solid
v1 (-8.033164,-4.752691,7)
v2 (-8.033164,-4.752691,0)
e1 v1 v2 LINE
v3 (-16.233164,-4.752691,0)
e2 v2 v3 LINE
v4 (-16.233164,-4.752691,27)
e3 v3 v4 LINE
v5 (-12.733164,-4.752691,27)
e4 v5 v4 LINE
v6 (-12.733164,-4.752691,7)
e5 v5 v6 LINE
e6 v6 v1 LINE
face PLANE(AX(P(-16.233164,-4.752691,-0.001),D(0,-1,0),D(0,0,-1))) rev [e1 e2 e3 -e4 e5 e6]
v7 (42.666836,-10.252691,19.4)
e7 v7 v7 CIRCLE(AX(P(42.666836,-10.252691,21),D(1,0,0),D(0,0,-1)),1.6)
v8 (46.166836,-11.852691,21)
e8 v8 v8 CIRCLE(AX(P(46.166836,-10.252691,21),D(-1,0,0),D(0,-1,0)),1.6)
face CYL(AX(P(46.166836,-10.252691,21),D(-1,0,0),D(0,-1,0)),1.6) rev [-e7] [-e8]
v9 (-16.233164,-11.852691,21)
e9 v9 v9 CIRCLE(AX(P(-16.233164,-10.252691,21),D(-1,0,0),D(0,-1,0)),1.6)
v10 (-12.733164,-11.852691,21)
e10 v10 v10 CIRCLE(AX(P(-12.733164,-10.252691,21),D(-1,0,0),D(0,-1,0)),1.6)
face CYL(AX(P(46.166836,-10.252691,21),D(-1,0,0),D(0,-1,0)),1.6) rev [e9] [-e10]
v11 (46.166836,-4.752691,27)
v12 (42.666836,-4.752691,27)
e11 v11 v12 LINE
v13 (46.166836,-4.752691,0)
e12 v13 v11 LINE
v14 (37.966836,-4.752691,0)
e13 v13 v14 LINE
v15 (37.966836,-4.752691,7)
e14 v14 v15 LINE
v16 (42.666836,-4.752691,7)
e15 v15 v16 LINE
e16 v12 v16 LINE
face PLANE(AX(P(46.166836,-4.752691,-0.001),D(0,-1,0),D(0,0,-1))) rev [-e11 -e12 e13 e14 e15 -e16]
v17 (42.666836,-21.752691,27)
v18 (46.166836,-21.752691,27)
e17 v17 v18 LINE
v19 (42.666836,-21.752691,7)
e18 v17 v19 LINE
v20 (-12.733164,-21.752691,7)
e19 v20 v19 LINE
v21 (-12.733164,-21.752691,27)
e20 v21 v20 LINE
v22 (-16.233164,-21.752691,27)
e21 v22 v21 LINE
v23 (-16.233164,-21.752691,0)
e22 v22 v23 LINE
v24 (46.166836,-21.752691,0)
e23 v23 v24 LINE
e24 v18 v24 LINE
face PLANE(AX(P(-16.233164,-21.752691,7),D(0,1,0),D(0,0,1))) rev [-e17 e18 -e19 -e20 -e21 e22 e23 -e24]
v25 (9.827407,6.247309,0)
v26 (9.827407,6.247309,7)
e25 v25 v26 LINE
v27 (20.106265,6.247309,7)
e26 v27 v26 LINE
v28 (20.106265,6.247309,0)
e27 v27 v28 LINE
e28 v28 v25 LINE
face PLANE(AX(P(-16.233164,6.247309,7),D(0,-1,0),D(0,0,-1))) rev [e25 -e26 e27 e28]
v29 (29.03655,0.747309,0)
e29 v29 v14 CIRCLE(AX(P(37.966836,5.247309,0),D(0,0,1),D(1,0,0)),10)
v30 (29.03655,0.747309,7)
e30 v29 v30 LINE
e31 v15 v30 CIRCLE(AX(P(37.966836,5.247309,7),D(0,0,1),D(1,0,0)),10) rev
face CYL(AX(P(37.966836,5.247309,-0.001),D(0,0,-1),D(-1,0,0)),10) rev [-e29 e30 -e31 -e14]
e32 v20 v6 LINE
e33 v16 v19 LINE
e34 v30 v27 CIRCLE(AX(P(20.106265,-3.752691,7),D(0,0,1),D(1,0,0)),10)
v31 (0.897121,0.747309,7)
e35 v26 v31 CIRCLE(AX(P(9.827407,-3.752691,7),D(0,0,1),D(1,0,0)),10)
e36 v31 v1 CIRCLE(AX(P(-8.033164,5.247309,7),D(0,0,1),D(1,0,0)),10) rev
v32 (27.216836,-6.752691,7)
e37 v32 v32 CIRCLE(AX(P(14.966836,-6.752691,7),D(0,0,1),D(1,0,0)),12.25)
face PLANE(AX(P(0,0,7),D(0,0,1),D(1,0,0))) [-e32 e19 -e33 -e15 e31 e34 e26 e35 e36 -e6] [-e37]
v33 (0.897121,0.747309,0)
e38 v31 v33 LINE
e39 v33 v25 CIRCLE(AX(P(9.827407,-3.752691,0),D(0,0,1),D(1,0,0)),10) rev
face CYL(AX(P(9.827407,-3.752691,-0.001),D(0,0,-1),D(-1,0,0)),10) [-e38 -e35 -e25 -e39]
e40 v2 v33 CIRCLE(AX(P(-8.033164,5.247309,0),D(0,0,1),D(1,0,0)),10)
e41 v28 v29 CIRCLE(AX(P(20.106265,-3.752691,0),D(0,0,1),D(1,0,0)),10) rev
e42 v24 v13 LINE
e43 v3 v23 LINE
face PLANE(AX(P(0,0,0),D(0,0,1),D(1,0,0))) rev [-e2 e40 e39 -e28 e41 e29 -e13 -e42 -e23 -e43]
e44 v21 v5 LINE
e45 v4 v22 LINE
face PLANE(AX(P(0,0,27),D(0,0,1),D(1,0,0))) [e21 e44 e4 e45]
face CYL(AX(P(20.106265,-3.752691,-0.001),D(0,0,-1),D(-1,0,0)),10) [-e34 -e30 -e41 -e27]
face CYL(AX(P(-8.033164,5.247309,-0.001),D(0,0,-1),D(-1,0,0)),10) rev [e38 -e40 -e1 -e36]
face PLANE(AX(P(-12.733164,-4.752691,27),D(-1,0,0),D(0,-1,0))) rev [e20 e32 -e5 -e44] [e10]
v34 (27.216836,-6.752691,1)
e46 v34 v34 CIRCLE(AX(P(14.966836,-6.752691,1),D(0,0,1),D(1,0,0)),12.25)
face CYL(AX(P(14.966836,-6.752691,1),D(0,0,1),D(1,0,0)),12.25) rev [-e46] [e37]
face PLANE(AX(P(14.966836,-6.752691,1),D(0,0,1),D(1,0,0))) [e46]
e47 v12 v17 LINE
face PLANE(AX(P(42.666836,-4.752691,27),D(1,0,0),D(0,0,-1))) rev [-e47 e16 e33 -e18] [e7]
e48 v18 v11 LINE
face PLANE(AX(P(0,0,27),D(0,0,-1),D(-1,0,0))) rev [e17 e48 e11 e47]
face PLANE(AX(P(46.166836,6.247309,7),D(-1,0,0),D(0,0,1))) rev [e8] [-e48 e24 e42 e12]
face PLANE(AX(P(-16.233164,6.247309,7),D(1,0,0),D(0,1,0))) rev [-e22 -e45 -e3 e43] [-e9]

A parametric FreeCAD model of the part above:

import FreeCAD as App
import Part
import Sketcher


def edges_at(feature, points):
    """Names of the edges that pass closest to the given points."""
    edges = feature.Shape.Edges
    near = lambda p: min(range(len(edges)), key=lambda i: edges[i].distToShape(Part.Vertex(*p))[0])
    return sorted({f"Edge{near(p) + 1}" for p in points})


def add_polygon(sketch, points):
    """Adds a closed chain of lines whose ends are joined by coincident constraints."""
    first, n = sketch.GeometryCount, len(points)
    for a, b in zip(points, points[1:] + points[:1]):
        sketch.addGeometry(Part.LineSegment(App.Vector(*a, 0), App.Vector(*b, 0)), False)
    for i in range(n):
        sketch.addConstraint(Sketcher.Constraint("Coincident", first + i, 2, first + (i + 1) % n, 1))

doc = App.newDocument("Part")
params = doc.addObject("Spreadsheet::Sheet", "Params")
for row, (alias, value) in enumerate([
    ("sketch1_height", "28 mm"),
    ("sketch1_width", "62.4 mm"),
    ("pad1_length", "7 mm"),
    ("sketch2_diameter", "24.5 mm"),
    ("pocket1_length", "6 mm"),
    ("sketch3_height", "11 mm"),
    ("sketch3_width", "18.2 mm"),
    ("sketch4_height", "11 mm"),
    ("sketch4_width", "18.2 mm"),
    ("fillet_radius", "10 mm"),
    ("fillet2_radius", "10 mm"),
    ("sketch5_height", "17 mm"),
    ("sketch5_width", "3.5 mm"),
    ("pad2_length", "20 mm"),
    ("sketch6_diameter", "3.2 mm"),
], start=1):
    params.set(f"A{row}", alias)
    params.set(f"B{row}", "=" + value)
    params.setAlias(f"B{row}", alias)

body = doc.addObject("PartDesign::Body", "Body")

# Sketch on XY plane
sketch1 = body.newObject("Sketcher::SketchObject", "Sketch")
sketch1.AttachmentSupport = (doc.getObject("XY_Plane"), [""])
sketch1.MapMode = "FlatFace"
add_polygon(sketch1, [(-16, 6), (-16, -22), (46, -22), (46, 6)])  # lines 0-3
sketch1.addConstraint(Sketcher.Constraint("Vertical", 0))
sketch1.addConstraint(Sketcher.Constraint("Horizontal", 1))
sketch1.addConstraint(Sketcher.Constraint("Vertical", 2))
sketch1.addConstraint(Sketcher.Constraint("Horizontal", 3))
sketch1.addConstraint(Sketcher.Constraint("DistanceY", 0, 2, 0, 1, 28.0))
sketch1.addConstraint(Sketcher.Constraint("DistanceX", 1, 1, 1, 2, 62.4))
sketch1.addConstraint(Sketcher.Constraint("DistanceY", 0, 2, -1, 1, 21.752691))
sketch1.addConstraint(Sketcher.Constraint("DistanceX", 0, 2, -1, 1, 16.233164))
sketch1.setExpression("Constraints[8]", "Params.sketch1_height")
sketch1.setExpression("Constraints[9]", "Params.sketch1_width")
pad1 = body.newObject("PartDesign::Pad", "Pad")
pad1.Profile = sketch1
pad1.setExpression("Length", "Params.pad1_length")

# Sketch on XY plane
sketch2 = body.newObject("Sketcher::SketchObject", "Sketch001")
sketch2.AttachmentSupport = (doc.getObject("XY_Plane"), [""])
sketch2.MapMode = "FlatFace"
sketch2.AttachmentOffset = App.Placement(App.Vector(0, 0, 7), App.Rotation())
sketch2.addGeometry(Part.Circle(App.Vector(15, -7, 0), App.Vector(0, 0, 1), 12), False)
sketch2.addConstraint(Sketcher.Constraint("Diameter", 0, 24.5))
sketch2.addConstraint(Sketcher.Constraint("DistanceY", 0, 3, -1, 1, 6.752691))
sketch2.addConstraint(Sketcher.Constraint("DistanceX", -1, 1, 0, 3, 14.966836))
sketch2.setExpression("Constraints[0]", "Params.sketch2_diameter")
pocket1 = body.newObject("PartDesign::Pocket", "Pocket")
pocket1.Profile = sketch2
pocket1.setExpression("Length", "Params.pocket1_length")

# Sketch on XY plane
sketch3 = body.newObject("Sketcher::SketchObject", "Sketch002")
sketch3.AttachmentSupport = (doc.getObject("XY_Plane"), [""])
sketch3.MapMode = "FlatFace"
sketch3.AttachmentOffset = App.Placement(App.Vector(0, 0, 7), App.Rotation())
add_polygon(sketch3, [(-16, 6), (-16, -5), (2, -5), (2, 6)])  # lines 0-3
sketch3.addConstraint(Sketcher.Constraint("Vertical", 0))
sketch3.addConstraint(Sketcher.Constraint("Horizontal", 1))
sketch3.addConstraint(Sketcher.Constraint("Vertical", 2))
sketch3.addConstraint(Sketcher.Constraint("Horizontal", 3))
sketch3.addConstraint(Sketcher.Constraint("DistanceY", 0, 2, 0, 1, 11.0))
sketch3.addConstraint(Sketcher.Constraint("DistanceX", 1, 1, 1, 2, 18.2))
sketch3.addConstraint(Sketcher.Constraint("DistanceY", 0, 2, -1, 1, 4.752691))
sketch3.addConstraint(Sketcher.Constraint("DistanceX", 0, 2, -1, 1, 16.233164))
sketch3.setExpression("Constraints[8]", "Params.sketch3_height")
sketch3.setExpression("Constraints[9]", "Params.sketch3_width")
pocket2 = body.newObject("PartDesign::Pocket", "Pocket001")
pocket2.Profile = sketch3
pocket2.Type = "UpToFirst"

# Sketch on XY plane
sketch4 = body.newObject("Sketcher::SketchObject", "Sketch003")
sketch4.AttachmentSupport = (doc.getObject("XY_Plane"), [""])
sketch4.MapMode = "FlatFace"
sketch4.AttachmentOffset = App.Placement(App.Vector(0, 0, 7), App.Rotation())
add_polygon(sketch4, [(28, 6), (28, -5), (46, -5), (46, 6)])  # lines 0-3
sketch4.addConstraint(Sketcher.Constraint("Vertical", 0))
sketch4.addConstraint(Sketcher.Constraint("Horizontal", 1))
sketch4.addConstraint(Sketcher.Constraint("Vertical", 2))
sketch4.addConstraint(Sketcher.Constraint("Horizontal", 3))
sketch4.addConstraint(Sketcher.Constraint("DistanceY", 0, 2, 0, 1, 11.0))
sketch4.addConstraint(Sketcher.Constraint("DistanceX", 1, 1, 1, 2, 18.2))
sketch4.addConstraint(Sketcher.Constraint("DistanceY", 0, 2, -1, 1, 4.752691))
sketch4.addConstraint(Sketcher.Constraint("DistanceX", -1, 1, 0, 2, 27.966836))
sketch4.setExpression("Constraints[8]", "Params.sketch4_height")
sketch4.setExpression("Constraints[9]", "Params.sketch4_width")
pocket3 = body.newObject("PartDesign::Pocket", "Pocket002")
pocket3.Profile = sketch4
pocket3.Type = "UpToFirst"
doc.recompute()

fillet = body.newObject("PartDesign::Fillet", "Fillet")
fillet.Base = (pocket3, edges_at(pocket3, [(1.967, -4.753, 3.5), (27.967, -4.753, 3.5)]))
fillet.setExpression("Radius", "Params.fillet_radius")
doc.recompute()

fillet2 = body.newObject("PartDesign::Fillet", "Fillet001")
fillet2.Base = (fillet, edges_at(fillet, [(27.967, 6.247, 3.5), (1.967, 6.247, 3.5)]))
fillet2.setExpression("Radius", "Params.fillet2_radius")

# Sketch on XY plane
sketch5 = body.newObject("Sketcher::SketchObject", "Sketch004")
sketch5.AttachmentSupport = (doc.getObject("XY_Plane"), [""])
sketch5.MapMode = "FlatFace"
sketch5.AttachmentOffset = App.Placement(App.Vector(0, 0, 7), App.Rotation())
add_polygon(sketch5, [(-16.2, -4.8), (-16.2, -21.8), (-12.7, -21.8), (-12.7, -4.8)])  # lines 0-3
add_polygon(sketch5, [(42.7, -4.8), (42.7, -21.8), (46.2, -21.8), (46.2, -4.8)])  # lines 4-7
sketch5.addConstraint(Sketcher.Constraint("Vertical", 0))
sketch5.addConstraint(Sketcher.Constraint("Horizontal", 1))
sketch5.addConstraint(Sketcher.Constraint("Vertical", 2))
sketch5.addConstraint(Sketcher.Constraint("Horizontal", 3))
sketch5.addConstraint(Sketcher.Constraint("Vertical", 4))
sketch5.addConstraint(Sketcher.Constraint("Horizontal", 5))
sketch5.addConstraint(Sketcher.Constraint("Vertical", 6))
sketch5.addConstraint(Sketcher.Constraint("Horizontal", 7))
sketch5.addConstraint(Sketcher.Constraint("Horizontal", 1, 2, 4, 2))
sketch5.addConstraint(Sketcher.Constraint("Horizontal", 3, 2, 6, 2))
sketch5.addConstraint(Sketcher.Constraint("Equal", 3, 5))
sketch5.addConstraint(Sketcher.Constraint("DistanceY", 0, 2, 0, 1, 17.0))
sketch5.addConstraint(Sketcher.Constraint("DistanceX", 1, 1, 1, 2, 3.5))
sketch5.addConstraint(Sketcher.Constraint("DistanceX", 1, 2, 4, 2, 55.4))
sketch5.addConstraint(Sketcher.Constraint("DistanceY", 0, 2, -1, 1, 21.752691))
sketch5.addConstraint(Sketcher.Constraint("DistanceX", 0, 2, -1, 1, 16.233164))
sketch5.setExpression("Constraints[19]", "Params.sketch5_height")
sketch5.setExpression("Constraints[20]", "Params.sketch5_width")
pad2 = body.newObject("PartDesign::Pad", "Pad001")
pad2.Profile = sketch5
pad2.setExpression("Length", "Params.pad2_length")

# Sketch on YZ plane
sketch6 = body.newObject("Sketcher::SketchObject", "Sketch005")
sketch6.AttachmentSupport = (doc.getObject("YZ_Plane"), [""])
sketch6.MapMode = "FlatFace"
sketch6.AttachmentOffset = App.Placement(App.Vector(0, 0, -16.233164), App.Rotation())
sketch6.addGeometry(Part.Circle(App.Vector(-10.3, 21, 0), App.Vector(0, 0, 1), 1.6), False)
sketch6.addConstraint(Sketcher.Constraint("Diameter", 0, 3.2))
sketch6.addConstraint(Sketcher.Constraint("DistanceY", -1, 1, 0, 3, 21.0))
sketch6.addConstraint(Sketcher.Constraint("DistanceX", 0, 3, -1, 1, 10.252691))
sketch6.setExpression("Constraints[0]", "Params.sketch6_diameter")
pocket4 = body.newObject("PartDesign::Pocket", "Pocket003")
pocket4.Profile = sketch6
pocket4.Type = "ThroughAll"
pocket4.Reversed = True

doc.recompute()
